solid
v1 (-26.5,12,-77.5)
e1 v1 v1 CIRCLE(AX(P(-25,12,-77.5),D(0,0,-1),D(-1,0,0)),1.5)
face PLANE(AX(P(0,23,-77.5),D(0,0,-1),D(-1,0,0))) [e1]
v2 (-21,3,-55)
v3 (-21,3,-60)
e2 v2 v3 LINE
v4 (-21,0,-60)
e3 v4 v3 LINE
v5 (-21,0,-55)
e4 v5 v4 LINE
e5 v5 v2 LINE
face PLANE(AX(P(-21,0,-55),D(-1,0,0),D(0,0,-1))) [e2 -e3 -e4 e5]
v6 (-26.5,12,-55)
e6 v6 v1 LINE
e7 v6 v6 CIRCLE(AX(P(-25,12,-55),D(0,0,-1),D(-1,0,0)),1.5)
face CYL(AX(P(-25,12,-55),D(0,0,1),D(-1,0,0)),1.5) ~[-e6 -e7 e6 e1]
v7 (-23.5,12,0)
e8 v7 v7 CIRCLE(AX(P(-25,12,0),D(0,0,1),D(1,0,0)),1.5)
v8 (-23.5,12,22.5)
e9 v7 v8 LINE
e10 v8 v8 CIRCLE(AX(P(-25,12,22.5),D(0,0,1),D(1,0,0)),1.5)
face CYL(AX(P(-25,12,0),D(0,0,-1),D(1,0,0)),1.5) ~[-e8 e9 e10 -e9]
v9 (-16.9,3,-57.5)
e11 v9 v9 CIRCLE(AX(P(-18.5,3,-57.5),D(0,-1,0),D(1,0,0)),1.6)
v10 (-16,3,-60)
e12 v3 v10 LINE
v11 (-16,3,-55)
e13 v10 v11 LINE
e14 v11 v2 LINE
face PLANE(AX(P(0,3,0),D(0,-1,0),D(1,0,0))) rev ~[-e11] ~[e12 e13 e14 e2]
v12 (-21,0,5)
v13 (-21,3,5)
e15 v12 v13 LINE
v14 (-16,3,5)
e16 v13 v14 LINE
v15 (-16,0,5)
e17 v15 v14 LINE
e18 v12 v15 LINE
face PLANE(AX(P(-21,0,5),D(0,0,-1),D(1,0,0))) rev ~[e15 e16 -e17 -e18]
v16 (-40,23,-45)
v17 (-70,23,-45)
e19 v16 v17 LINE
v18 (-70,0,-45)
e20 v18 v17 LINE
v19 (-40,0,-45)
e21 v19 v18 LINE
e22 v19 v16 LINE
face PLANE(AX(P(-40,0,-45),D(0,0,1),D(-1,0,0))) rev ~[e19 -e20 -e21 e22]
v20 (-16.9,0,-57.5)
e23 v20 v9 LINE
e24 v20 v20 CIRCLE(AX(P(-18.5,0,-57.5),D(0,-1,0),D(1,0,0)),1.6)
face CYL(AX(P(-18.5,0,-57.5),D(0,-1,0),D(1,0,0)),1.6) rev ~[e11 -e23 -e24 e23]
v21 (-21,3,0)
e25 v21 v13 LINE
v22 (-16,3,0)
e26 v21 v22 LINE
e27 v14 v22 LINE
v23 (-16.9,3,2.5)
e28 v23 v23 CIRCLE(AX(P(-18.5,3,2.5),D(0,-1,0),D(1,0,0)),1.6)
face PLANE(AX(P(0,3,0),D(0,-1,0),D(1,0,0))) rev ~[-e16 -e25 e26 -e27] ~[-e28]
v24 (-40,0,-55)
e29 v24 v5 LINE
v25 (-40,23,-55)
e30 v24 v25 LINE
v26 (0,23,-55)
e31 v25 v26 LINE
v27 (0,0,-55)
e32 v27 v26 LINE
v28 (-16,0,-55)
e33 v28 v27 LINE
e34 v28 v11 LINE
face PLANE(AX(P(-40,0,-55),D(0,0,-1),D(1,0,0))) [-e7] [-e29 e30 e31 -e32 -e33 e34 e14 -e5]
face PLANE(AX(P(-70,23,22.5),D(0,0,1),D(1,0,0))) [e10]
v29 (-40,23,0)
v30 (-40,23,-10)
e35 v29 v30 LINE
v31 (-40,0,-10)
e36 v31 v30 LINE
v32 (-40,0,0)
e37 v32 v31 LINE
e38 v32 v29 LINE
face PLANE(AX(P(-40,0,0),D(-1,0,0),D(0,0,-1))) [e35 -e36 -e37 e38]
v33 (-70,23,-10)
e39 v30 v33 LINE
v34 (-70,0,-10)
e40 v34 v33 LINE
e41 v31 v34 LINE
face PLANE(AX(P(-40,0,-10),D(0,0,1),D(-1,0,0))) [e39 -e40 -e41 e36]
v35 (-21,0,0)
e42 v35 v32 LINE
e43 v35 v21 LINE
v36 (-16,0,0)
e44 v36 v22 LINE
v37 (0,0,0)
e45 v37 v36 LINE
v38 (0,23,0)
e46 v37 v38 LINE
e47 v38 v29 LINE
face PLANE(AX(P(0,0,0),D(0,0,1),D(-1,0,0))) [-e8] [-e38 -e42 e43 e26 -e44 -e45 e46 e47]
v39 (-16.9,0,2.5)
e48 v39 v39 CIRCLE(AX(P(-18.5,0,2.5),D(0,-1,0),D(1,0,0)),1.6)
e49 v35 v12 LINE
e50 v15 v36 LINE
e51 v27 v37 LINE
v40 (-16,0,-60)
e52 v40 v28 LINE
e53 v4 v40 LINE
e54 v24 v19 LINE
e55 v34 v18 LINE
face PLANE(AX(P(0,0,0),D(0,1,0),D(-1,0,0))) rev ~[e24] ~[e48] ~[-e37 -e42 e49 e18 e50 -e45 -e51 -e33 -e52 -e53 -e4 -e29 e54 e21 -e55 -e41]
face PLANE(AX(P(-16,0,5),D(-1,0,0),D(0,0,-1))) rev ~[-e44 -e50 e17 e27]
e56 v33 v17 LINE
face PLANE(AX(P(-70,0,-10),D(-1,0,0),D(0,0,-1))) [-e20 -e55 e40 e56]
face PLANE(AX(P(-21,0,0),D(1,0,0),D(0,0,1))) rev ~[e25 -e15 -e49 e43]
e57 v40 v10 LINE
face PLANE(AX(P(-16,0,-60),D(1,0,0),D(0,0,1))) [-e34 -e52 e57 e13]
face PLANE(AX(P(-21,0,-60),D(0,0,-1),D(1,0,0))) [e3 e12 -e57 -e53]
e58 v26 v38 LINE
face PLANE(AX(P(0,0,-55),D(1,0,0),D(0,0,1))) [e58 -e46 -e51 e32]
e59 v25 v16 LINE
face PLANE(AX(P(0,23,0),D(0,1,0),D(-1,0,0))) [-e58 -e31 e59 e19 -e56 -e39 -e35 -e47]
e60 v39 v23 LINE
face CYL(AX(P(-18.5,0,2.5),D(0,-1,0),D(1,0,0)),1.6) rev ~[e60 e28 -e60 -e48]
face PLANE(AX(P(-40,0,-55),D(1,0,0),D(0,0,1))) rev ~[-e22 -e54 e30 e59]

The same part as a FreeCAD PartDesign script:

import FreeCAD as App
import Part
import Sketcher
from FreeCAD import Vector


def add_polygon(sketch, points):
    """Adds a closed chain of lines whose ends are joined by coincident constraints."""
    first, n = sketch.GeometryCount, len(points)
    for a, b in zip(points, points[1:] + points[:1]):
        sketch.addGeometry(Part.LineSegment(App.Vector(*a, 0), App.Vector(*b, 0)), False)
    for i in range(n):
        sketch.addConstraint(Sketcher.Constraint("Coincident", first + i, 2, first + (i + 1) % n, 1))

doc = App.newDocument("Part")
body = doc.addObject("PartDesign::Body", "Body")

# Sketch on XZ plane
sketch1 = doc.addObject("Sketcher::SketchObject", "Sketch")
body.addObject(sketch1)
sketch1.AttachmentSupport = (doc.XZ_Plane, [""])
sketch1.MapMode = "FlatFace"
add_polygon(sketch1, [(-40, 0), (0, 0), (0, -55), (-40, -55), (-40, -45), (-70, -45), (-70, -10), (-40, -10)])  # lines 0-7
sketch1.addConstraint(Sketcher.Constraint("Horizontal", 0))
sketch1.addConstraint(Sketcher.Constraint("Vertical", 1))
sketch1.addConstraint(Sketcher.Constraint("Horizontal", 2))
sketch1.addConstraint(Sketcher.Constraint("Vertical", 3))
sketch1.addConstraint(Sketcher.Constraint("Horizontal", 4))
sketch1.addConstraint(Sketcher.Constraint("Vertical", 5))
sketch1.addConstraint(Sketcher.Constraint("Horizontal", 6))
sketch1.addConstraint(Sketcher.Constraint("Vertical", 7))
sketch1.addConstraint(Sketcher.Constraint("Coincident", 0, 2, -1, 1))
sketch1.addConstraint(Sketcher.Constraint("Vertical", 3, 2, 6, 2))
sketch1.addConstraint(Sketcher.Constraint("Equal", 3, 7))
sketch1.addConstraint(Sketcher.Constraint("DistanceX", 4, 2, 4, 1, 30.0))
sketch1.addConstraint(Sketcher.Constraint("DistanceY", 1, 2, 1, 1, 55.0))
sketch1.addConstraint(Sketcher.Constraint("DistanceY", 3, 1, 3, 2, 10.0))
sketch1.addConstraint(Sketcher.Constraint("DistanceX", 4, 2, -1, 1, 70.0))
pad1 = doc.addObject("PartDesign::Pad", "Pad")
body.addObject(pad1)
pad1.Profile = sketch1
pad1.Length = 23
pad1.Reversed = True

# Sketch on XZ plane
sketch2 = doc.addObject("Sketcher::SketchObject", "Sketch001")
body.addObject(sketch2)
sketch2.AttachmentSupport = (doc.XZ_Plane, [""])
sketch2.MapMode = "FlatFace"
add_polygon(sketch2, [(-21, 5), (-21, 0), (-16, 0), (-16, 5)])  # lines 0-3
sketch2.addGeometry(Part.Circle(Vector(-18.5, 2.5, 0), Vector(0, 0, 1), 1.6), False)  # 4
add_polygon(sketch2, [(-16, -60), (-16, -55), (-21, -55), (-21, -60)])  # lines 5-8
sketch2.addGeometry(Part.Circle(Vector(-18.5, -57.5, 0), Vector(0, 0, 1), 1.6), False)  # 9
sketch2.addConstraint(Sketcher.Constraint("Vertical", 0))
sketch2.addConstraint(Sketcher.Constraint("Horizontal", 1))
sketch2.addConstraint(Sketcher.Constraint("Vertical", 2))
sketch2.addConstraint(Sketcher.Constraint("Horizontal", 3))
sketch2.addConstraint(Sketcher.Constraint("Vertical", 5))
sketch2.addConstraint(Sketcher.Constraint("Horizontal", 6))
sketch2.addConstraint(Sketcher.Constraint("Vertical", 7))
sketch2.addConstraint(Sketcher.Constraint("Horizontal", 8))
sketch2.addConstraint(Sketcher.Constraint("Equal", 4, 9))
sketch2.addConstraint(Sketcher.Constraint("PointOnObject", 0, 2, -1))
sketch2.addConstraint(Sketcher.Constraint("Vertical", 4, 3, 9, 3))
sketch2.addConstraint(Sketcher.Constraint("Vertical", 2, 2, 5, 2))
sketch2.addConstraint(Sketcher.Constraint("Vertical", 3, 2, 6, 2))
sketch2.addConstraint(Sketcher.Constraint("Equal", 8, 0))
sketch2.addConstraint(Sketcher.Constraint("Equal", 2, 5))
sketch2.addConstraint(Sketcher.Constraint("Diameter", 4, 3.2))
sketch2.addConstraint(Sketcher.Constraint("DistanceX", 1, 1, 1, 2, 5.0))
sketch2.addConstraint(Sketcher.Constraint("DistanceX", 1, 2, -1, 1, 16.0))
sketch2.addConstraint(Sketcher.Constraint("DistanceY", -1, 1, 4, 3, 2.5))
sketch2.addConstraint(Sketcher.Constraint("DistanceX", 0, 2, 4, 3, 2.5))
sketch2.addConstraint(Sketcher.Constraint("DistanceY", 9, 3, 5, 2, 2.5))
sketch2.addConstraint(Sketcher.Constraint("DistanceY", 5, 2, -1, 1, 55.0))
pad2 = doc.addObject("PartDesign::Pad", "Pad001")
body.addObject(pad2)
pad2.Profile = sketch2
pad2.Length = 3
pad2.Reversed = True

# Sketch on XY plane
sketch3 = doc.addObject("Sketcher::SketchObject", "Sketch002")
body.addObject(sketch3)
sketch3.AttachmentSupport = (doc.XY_Plane, [""])
sketch3.MapMode = "FlatFace"
sketch3.addGeometry(Part.Circle(Vector(-25, 12, 0), Vector(0, 0, 1), 1.5), False)
sketch3.addConstraint(Sketcher.Constraint("Diameter", 0, 3.0))
sketch3.addConstraint(Sketcher.Constraint("DistanceX", 0, 3, -1, 1, 25.0))
sketch3.addConstraint(Sketcher.Constraint("DistanceY", -1, 1, 0, 3, 12.0))
pad3 = doc.addObject("PartDesign::Pad", "Pad002")
body.addObject(pad3)
pad3.Profile = sketch3
pad3.Length = 22.5

# Sketch on XY plane
sketch4 = doc.addObject("Sketcher::SketchObject", "Sketch003")
body.addObject(sketch4)
sketch4.AttachmentSupport = (doc.XY_Plane, [""])
sketch4.MapMode = "FlatFace"
sketch4.AttachmentOffset = App.Placement(Vector(0, 0, -55), App.Rotation())
sketch4.addGeometry(Part.Circle(Vector(-25, 12, 0), Vector(0, 0, 1), 1.5), False)
sketch4.addConstraint(Sketcher.Constraint("Diameter", 0, 3.0))
sketch4.addConstraint(Sketcher.Constraint("DistanceX", 0, 3, -1, 1, 25.0))
sketch4.addConstraint(Sketcher.Constraint("DistanceY", -1, 1, 0, 3, 12.0))
pad4 = doc.addObject("PartDesign::Pad", "Pad003")
body.addObject(pad4)
pad4.Profile = sketch4
pad4.Length = 22.5
pad4.Reversed = True

doc.recompute()
